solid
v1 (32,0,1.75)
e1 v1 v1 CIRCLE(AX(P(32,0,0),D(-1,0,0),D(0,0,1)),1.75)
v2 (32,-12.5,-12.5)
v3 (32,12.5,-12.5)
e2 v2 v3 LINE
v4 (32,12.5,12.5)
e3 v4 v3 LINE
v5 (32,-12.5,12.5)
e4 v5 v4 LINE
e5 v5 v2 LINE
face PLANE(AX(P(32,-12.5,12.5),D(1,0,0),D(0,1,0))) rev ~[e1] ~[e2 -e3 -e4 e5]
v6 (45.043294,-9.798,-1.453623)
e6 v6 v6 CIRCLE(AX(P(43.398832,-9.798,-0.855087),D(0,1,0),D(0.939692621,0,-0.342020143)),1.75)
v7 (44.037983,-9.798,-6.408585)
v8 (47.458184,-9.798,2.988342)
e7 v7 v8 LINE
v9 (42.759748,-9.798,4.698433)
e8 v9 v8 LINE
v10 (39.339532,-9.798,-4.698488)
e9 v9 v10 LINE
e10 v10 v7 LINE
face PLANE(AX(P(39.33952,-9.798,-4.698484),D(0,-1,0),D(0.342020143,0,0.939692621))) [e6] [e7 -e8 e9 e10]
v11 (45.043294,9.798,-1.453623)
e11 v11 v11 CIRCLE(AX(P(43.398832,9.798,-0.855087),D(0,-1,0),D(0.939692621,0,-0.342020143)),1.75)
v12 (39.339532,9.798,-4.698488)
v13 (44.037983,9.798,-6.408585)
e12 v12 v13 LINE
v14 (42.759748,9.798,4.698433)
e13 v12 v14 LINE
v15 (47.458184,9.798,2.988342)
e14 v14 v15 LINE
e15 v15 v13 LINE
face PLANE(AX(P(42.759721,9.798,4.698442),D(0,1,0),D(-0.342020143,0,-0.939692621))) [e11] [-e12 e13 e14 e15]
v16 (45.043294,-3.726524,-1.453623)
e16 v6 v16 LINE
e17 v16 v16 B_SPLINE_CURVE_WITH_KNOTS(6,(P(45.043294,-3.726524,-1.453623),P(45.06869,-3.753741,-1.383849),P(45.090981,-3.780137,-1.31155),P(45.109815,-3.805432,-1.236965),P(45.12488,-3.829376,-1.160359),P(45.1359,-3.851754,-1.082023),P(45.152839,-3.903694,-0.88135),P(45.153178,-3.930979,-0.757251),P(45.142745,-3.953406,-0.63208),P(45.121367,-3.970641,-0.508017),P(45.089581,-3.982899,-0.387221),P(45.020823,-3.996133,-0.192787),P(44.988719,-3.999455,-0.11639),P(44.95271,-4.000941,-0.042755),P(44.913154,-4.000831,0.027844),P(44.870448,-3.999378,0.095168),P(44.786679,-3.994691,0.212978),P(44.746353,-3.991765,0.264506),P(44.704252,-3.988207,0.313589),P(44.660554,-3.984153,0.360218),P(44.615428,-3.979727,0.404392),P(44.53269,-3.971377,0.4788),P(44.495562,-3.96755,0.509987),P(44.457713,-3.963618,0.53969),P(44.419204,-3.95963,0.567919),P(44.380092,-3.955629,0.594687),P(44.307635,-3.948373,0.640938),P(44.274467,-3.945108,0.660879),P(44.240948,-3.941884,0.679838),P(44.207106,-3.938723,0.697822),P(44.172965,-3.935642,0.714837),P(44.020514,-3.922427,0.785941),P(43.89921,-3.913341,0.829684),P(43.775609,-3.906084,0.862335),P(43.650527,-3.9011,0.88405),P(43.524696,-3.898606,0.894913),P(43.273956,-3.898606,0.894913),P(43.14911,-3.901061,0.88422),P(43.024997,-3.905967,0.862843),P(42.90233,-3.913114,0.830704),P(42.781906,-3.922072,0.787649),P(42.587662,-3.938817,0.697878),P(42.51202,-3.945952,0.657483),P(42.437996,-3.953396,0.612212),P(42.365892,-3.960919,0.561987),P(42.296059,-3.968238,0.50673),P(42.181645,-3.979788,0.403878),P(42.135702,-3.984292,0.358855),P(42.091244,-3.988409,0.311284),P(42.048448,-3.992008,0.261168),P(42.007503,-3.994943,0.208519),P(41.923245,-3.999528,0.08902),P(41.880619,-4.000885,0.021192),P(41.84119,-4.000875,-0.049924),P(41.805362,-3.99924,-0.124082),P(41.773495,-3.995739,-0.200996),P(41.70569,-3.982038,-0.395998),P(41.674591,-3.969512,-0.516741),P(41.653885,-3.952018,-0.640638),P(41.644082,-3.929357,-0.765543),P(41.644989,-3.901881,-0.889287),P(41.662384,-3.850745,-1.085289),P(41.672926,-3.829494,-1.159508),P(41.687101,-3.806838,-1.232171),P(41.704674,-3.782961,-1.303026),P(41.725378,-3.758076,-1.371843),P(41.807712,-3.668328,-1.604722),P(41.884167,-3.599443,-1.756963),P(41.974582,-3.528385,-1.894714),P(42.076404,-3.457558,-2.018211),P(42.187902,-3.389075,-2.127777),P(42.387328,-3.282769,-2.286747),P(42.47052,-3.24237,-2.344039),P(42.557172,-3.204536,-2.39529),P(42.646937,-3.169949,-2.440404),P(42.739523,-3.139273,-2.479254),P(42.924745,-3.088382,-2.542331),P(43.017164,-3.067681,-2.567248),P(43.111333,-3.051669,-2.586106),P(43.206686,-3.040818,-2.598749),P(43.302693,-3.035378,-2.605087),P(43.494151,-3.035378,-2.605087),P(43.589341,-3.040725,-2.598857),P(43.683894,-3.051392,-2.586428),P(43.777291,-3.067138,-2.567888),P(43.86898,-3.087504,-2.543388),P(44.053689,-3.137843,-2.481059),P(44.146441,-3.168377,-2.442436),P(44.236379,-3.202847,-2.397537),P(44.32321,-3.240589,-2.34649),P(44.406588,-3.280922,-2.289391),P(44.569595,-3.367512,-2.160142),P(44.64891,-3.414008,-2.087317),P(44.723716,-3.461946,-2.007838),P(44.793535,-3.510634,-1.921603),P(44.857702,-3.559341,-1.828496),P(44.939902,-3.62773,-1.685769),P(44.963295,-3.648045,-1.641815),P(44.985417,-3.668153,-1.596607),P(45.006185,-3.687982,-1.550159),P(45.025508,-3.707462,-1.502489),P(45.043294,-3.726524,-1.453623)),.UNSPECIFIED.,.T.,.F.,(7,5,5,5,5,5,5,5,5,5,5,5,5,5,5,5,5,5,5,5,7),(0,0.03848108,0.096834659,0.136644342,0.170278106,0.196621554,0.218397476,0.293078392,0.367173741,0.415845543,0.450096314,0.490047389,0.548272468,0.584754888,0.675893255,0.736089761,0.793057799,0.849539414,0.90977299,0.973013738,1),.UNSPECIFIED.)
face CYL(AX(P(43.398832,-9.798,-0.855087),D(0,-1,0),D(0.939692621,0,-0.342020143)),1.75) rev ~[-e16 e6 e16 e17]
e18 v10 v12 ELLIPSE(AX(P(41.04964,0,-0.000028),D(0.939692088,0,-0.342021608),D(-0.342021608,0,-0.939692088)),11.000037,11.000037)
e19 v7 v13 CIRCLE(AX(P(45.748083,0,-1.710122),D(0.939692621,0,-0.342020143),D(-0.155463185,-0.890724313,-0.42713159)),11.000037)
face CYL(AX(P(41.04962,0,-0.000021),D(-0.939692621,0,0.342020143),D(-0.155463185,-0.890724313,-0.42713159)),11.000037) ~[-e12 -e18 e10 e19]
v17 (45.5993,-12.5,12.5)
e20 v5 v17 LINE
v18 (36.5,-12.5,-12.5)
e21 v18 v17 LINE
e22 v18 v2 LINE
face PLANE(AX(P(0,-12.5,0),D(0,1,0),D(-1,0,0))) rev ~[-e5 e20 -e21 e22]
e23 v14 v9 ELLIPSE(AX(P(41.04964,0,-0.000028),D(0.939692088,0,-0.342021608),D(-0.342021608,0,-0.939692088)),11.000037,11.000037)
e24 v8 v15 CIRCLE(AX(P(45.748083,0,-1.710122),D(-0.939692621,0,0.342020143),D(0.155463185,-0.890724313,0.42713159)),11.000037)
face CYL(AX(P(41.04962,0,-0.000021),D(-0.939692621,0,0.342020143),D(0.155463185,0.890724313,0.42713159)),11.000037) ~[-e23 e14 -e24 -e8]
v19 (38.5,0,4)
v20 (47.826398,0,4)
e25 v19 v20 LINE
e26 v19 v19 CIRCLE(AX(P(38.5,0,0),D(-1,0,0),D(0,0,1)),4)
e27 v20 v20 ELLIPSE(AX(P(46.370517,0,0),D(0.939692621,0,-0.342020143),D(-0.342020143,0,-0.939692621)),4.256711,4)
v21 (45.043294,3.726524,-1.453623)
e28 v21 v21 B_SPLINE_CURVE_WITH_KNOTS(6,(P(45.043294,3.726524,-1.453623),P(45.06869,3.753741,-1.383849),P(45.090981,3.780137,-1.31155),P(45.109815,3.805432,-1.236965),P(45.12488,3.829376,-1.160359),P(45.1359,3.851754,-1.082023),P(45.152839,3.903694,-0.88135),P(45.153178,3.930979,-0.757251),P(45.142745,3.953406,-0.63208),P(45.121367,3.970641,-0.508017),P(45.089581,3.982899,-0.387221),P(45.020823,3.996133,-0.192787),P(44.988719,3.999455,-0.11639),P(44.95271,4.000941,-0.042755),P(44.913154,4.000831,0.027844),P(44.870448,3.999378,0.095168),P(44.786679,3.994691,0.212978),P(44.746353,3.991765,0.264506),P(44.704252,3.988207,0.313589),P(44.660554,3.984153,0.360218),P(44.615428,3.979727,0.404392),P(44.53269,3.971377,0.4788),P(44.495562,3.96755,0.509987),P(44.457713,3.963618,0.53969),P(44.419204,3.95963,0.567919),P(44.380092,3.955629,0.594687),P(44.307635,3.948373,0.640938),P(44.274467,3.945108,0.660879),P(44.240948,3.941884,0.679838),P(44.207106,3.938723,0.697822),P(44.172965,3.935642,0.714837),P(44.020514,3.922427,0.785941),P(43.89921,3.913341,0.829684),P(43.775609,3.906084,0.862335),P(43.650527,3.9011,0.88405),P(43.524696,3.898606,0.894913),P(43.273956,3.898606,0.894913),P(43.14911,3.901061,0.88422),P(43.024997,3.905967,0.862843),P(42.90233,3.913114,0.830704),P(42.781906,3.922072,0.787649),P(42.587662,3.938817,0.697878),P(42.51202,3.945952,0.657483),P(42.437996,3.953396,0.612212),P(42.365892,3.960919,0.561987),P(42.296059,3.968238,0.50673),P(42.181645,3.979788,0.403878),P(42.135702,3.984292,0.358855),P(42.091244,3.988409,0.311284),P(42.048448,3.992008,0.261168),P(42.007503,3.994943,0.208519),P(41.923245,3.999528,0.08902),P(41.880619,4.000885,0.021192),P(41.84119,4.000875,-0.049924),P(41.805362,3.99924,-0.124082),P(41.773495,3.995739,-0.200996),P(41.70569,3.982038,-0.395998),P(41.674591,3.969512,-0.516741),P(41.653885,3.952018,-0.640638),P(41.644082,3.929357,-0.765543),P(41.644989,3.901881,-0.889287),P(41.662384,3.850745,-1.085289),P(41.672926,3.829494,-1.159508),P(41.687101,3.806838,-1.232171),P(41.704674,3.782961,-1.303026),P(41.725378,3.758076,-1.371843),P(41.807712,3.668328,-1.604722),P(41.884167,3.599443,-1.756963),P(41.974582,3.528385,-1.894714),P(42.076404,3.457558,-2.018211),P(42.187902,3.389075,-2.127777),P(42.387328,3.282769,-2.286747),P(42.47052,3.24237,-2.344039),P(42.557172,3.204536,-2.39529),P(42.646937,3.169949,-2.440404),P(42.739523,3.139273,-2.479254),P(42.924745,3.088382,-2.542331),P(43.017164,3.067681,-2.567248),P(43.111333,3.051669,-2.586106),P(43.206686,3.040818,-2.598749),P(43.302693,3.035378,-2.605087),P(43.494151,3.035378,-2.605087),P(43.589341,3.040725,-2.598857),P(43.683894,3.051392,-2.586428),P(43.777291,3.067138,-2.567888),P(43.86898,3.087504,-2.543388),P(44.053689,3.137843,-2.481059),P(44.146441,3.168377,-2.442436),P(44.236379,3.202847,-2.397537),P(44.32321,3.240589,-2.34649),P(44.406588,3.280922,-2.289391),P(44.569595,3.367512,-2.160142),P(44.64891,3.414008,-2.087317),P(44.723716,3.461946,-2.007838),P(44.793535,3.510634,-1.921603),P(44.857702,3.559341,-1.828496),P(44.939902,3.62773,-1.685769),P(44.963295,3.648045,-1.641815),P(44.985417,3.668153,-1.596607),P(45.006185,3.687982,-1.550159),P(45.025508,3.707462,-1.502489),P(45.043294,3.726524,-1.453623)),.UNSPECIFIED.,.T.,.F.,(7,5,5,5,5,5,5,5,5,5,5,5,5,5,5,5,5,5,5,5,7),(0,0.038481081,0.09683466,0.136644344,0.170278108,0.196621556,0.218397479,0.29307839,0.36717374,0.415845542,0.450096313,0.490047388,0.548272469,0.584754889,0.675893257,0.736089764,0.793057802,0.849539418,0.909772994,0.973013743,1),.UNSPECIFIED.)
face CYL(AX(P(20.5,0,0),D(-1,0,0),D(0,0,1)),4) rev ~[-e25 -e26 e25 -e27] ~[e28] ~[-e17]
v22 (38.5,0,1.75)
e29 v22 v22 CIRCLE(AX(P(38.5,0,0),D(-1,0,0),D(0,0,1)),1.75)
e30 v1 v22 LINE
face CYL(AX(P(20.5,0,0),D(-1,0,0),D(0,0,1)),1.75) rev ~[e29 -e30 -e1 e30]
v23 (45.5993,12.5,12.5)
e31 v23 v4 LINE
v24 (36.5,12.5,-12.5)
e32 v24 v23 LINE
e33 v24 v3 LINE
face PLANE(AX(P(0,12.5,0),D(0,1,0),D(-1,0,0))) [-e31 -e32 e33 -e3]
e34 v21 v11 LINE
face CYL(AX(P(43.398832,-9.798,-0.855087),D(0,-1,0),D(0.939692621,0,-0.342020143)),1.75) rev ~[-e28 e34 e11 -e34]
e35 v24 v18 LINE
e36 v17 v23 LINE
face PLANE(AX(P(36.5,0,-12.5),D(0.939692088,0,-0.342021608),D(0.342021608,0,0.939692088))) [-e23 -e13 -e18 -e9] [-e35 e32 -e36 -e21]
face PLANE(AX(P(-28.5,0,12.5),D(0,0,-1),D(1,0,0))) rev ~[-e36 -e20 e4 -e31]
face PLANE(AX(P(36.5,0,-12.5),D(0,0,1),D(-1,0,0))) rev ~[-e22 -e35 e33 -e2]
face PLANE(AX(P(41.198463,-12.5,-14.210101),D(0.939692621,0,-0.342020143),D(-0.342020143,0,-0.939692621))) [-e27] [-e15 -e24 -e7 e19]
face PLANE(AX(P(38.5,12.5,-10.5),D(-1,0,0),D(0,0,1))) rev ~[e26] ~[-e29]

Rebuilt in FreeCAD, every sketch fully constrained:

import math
import FreeCAD as App
import Part
import Sketcher
from FreeCAD import Vector
Q = App.Units.Quantity


def add_polygon(sketch, points):
    """Adds a closed chain of lines whose ends are joined by coincident constraints."""
    first, n = sketch.GeometryCount, len(points)
    for a, b in zip(points, points[1:] + points[:1]):
        sketch.addGeometry(Part.LineSegment(App.Vector(*a, 0), App.Vector(*b, 0)), False)
    for i in range(n):
        sketch.addConstraint(Sketcher.Constraint("Coincident", first + i, 2, first + (i + 1) % n, 1))

doc = App.newDocument("Part")
body = doc.addObject("PartDesign::Body", "Body")

sketch1 = body.newObject("Sketcher::SketchObject", "Sketch")
sketch1.AttachmentSupport = (doc.getObject("XZ_Plane"), [""])
sketch1.MapMode = "FlatFace"
add_polygon(sketch1, [(-28, -12), (-28, 12), (46, 12), (36, -12)])
add_polygon(sketch1, [(20, 10), (-20, 10), (-20, -10), (20, -10)])
sketch1.addConstraint(Sketcher.Constraint("Vertical", 0))
sketch1.addConstraint(Sketcher.Constraint("Horizontal", 1))
sketch1.addConstraint(Sketcher.Constraint("Horizontal", 3))
sketch1.addConstraint(Sketcher.Constraint("Horizontal", 4))
sketch1.addConstraint(Sketcher.Constraint("Vertical", 5))
sketch1.addConstraint(Sketcher.Constraint("Horizontal", 6))
sketch1.addConstraint(Sketcher.Constraint("Vertical", 7))
sketch1.addConstraint(Sketcher.Constraint("Symmetric", 4, 2, 6, 2, -1, 1))
sketch1.addConstraint(Sketcher.Constraint("DistanceX", 4, 2, 4, 1, Q("41 mm")))
sketch1.addConstraint(Sketcher.Constraint("DistanceY", 5, 2, 5, 1, Q("21 mm")))
sketch1.addConstraint(Sketcher.Constraint("DistanceX", 0, 2, 4, 2, Q("8 mm")))
sketch1.addConstraint(Sketcher.Constraint("DistanceY", 4, 2, 0, 2, Q("2 mm")))
sketch1.addConstraint(Sketcher.Constraint("DistanceY", 3, 2, 5, 2, Q("2 mm")))
sketch1.addConstraint(Sketcher.Constraint("DistanceX", 6, 2, 2, 2, Q("16 mm")))
sketch1.addConstraint(Sketcher.Constraint("Angle", 2, Q("-110 deg")))
pad1 = body.newObject("PartDesign::Pad", "Pad")
pad1.Profile = sketch1
pad1.Length = 25
pad1.Midplane = True

sketch2 = body.newObject("Sketcher::SketchObject", "Sketch001")
sketch2.Placement = App.Placement(Vector(36.5, -12.5, -12.5), App.Rotation(Vector(-0.342020143, 0, -0.939692621), Vector(0, 1, 0), Vector(0.939692621, 0, -0.342020143), "ZXY"))
sketch2.addGeometry(Part.ArcOfCircle(Part.Circle(Vector(-13, 13, 0), Vector(0, 0, 1), 11), math.radians(117), math.radians(243)), False)
sketch2.addGeometry(Part.LineSegment(Vector(-18, 3, 0), Vector(-8, 3, 0)), False)
sketch2.addGeometry(Part.ArcOfCircle(Part.Circle(Vector(-13, 13, 0), Vector(0, 0, 1), 11), math.radians(-63), math.radians(63)), False)
sketch2.addGeometry(Part.LineSegment(Vector(-8, 22, 0), Vector(-18, 22, 0)), False)
sketch2.addConstraint(Sketcher.Constraint("Coincident", 0, 2, 1, 1))
sketch2.addConstraint(Sketcher.Constraint("Coincident", 1, 2, 2, 1))
sketch2.addConstraint(Sketcher.Constraint("Coincident", 2, 2, 3, 1))
sketch2.addConstraint(Sketcher.Constraint("Coincident", 3, 2, 0, 1))
sketch2.addConstraint(Sketcher.Constraint("Horizontal", 1))
sketch2.addConstraint(Sketcher.Constraint("Horizontal", 3))
sketch2.addConstraint(Sketcher.Constraint("Coincident", 2, 3, 0, 3))
sketch2.addConstraint(Sketcher.Constraint("Equal", 0, 2))
sketch2.addConstraint(Sketcher.Constraint("Vertical", 1, 2, 2, 2))
sketch2.addConstraint(Sketcher.Constraint("Radius", 0, Q("11 mm")))
sketch2.addConstraint(Sketcher.Constraint("DistanceX", 1, 1, 1, 2, Q("10 mm")))
sketch2.addConstraint(Sketcher.Constraint("DistanceY", -1, 1, 0, 3, Q("12.5 mm")))
sketch2.addConstraint(Sketcher.Constraint("DistanceX", 0, 3, -1, 1, Q("13.3022 mm")))
pad2 = body.newObject("PartDesign::Pad", "Pad001")
pad2.Profile = sketch2
pad2.Length = 5

sketch3 = body.newObject("Sketcher::SketchObject", "Sketch002")
sketch3.AttachmentSupport = (doc.getObject("XZ_Plane"), [""])
sketch3.MapMode = "FlatFace"
sketch3.AttachmentOffset = App.Placement(Vector(0, 0, 9.798), App.Rotation())
sketch3.addGeometry(Part.Circle(Vector(43.4, -0.9, 0), Vector(0, 0, 1), 1.8), False)
sketch3.addConstraint(Sketcher.Constraint("Diameter", 0, Q("3.5 mm")))
sketch3.addConstraint(Sketcher.Constraint("DistanceY", 0, 3, -1, 1, Q("0.855 mm")))
sketch3.addConstraint(Sketcher.Constraint("DistanceX", -1, 1, 0, 3, Q("43.3988 mm")))
pocket1 = body.newObject("PartDesign::Pocket", "Pocket")
pocket1.Profile = sketch3
pocket1.Type = "ThroughAll"

sketch4 = body.newObject("Sketcher::SketchObject", "Sketch003")
sketch4.AttachmentSupport = (doc.getObject("YZ_Plane"), [""])
sketch4.MapMode = "FlatFace"
sketch4.AttachmentOffset = App.Placement(Vector(0, 0, 20.5), App.Rotation())
add_polygon(sketch4, [(-6.5, -10.5), (-9.5, -10.5), (-9.5, 10.5), (-6.5, 10.5)])
sketch4.addConstraint(Sketcher.Constraint("Horizontal", 0))
sketch4.addConstraint(Sketcher.Constraint("Vertical", 1))
sketch4.addConstraint(Sketcher.Constraint("Horizontal", 2))
sketch4.addConstraint(Sketcher.Constraint("Vertical", 3))
sketch4.addConstraint(Sketcher.Constraint("DistanceX", 0, 2, 0, 1, Q("3 mm")))
sketch4.addConstraint(Sketcher.Constraint("DistanceY", 1, 1, 1, 2, Q("21 mm")))
sketch4.addConstraint(Sketcher.Constraint("DistanceX", 0, 2, -1, 1, Q("9.5 mm")))
sketch4.addConstraint(Sketcher.Constraint("DistanceY", 0, 2, -1, 1, Q("10.5 mm")))
pocket2 = body.newObject("PartDesign::Pocket", "Pocket001")
pocket2.Profile = sketch4
pocket2.Length = 7
pocket2.Reversed = True

sketch5 = body.newObject("Sketcher::SketchObject", "Sketch004")
sketch5.AttachmentSupport = (doc.getObject("YZ_Plane"), [""])
sketch5.MapMode = "FlatFace"
sketch5.AttachmentOffset = App.Placement(Vector(0, 0, -20.5), App.Rotation())
add_polygon(sketch5, [(-6.5, -10.5), (-6.5, 10.5), (-9.5, 10.5), (-9.5, -10.5)])
sketch5.addConstraint(Sketcher.Constraint("Vertical", 0))
sketch5.addConstraint(Sketcher.Constraint("Horizontal", 1))
sketch5.addConstraint(Sketcher.Constraint("Vertical", 2))
sketch5.addConstraint(Sketcher.Constraint("Horizontal", 3))
sketch5.addConstraint(Sketcher.Constraint("DistanceX", 1, 2, 1, 1, Q("3 mm")))
sketch5.addConstraint(Sketcher.Constraint("DistanceY", 0, 1, 0, 2, Q("21 mm")))
sketch5.addConstraint(Sketcher.Constraint("DistanceX", 0, 2, -1, 1, Q("6.5 mm")))
sketch5.addConstraint(Sketcher.Constraint("DistanceY", -1, 1, 0, 2, Q("10.5 mm")))
pocket3 = body.newObject("PartDesign::Pocket", "Pocket002")
pocket3.Profile = sketch5
pocket3.Length = 7

sketch6 = body.newObject("Sketcher::SketchObject", "Sketch005")
sketch6.AttachmentSupport = (doc.getObject("YZ_Plane"), [""])
sketch6.MapMode = "FlatFace"
sketch6.AttachmentOffset = App.Placement(Vector(0, 0, 20.5), App.Rotation())
sketch6.addGeometry(Part.Circle(Vector(0, 0, 0), Vector(0, 0, 1), 4), False)
sketch6.addConstraint(Sketcher.Constraint("Coincident", 0, 3, -1, 1))
sketch6.addConstraint(Sketcher.Constraint("Diameter", 0, Q("8 mm")))
pocket4 = body.newObject("PartDesign::Pocket", "Pocket003")
pocket4.Profile = sketch6
pocket4.Type = "ThroughAll"
pocket4.Reversed = True

sketch7 = body.newObject("Sketcher::SketchObject", "Sketch006")
sketch7.AttachmentSupport = (doc.getObject("YZ_Plane"), [""])
sketch7.MapMode = "FlatFace"
sketch7.AttachmentOffset = App.Placement(Vector(0, 0, 20.5), App.Rotation())
sketch7.addGeometry(Part.Circle(Vector(0, 0, 0), Vector(0, 0, 1), 4), False)
sketch7.addGeometry(Part.Circle(Vector(0, 0, 0), Vector(0, 0, 1), 1.8), False)
sketch7.addConstraint(Sketcher.Constraint("Coincident", 0, 3, -1, 1))
sketch7.addConstraint(Sketcher.Constraint("Coincident", 1, 3, -1, 1))
sketch7.addConstraint(Sketcher.Constraint("Diameter", 1, Q("3.5 mm")))
sketch7.addConstraint(Sketcher.Constraint("Diameter", 0, Q("8 mm")))
pad3 = body.newObject("PartDesign::Pad", "Pad002")
pad3.Profile = sketch7
pad3.Length = 18

sketch8 = body.newObject("Sketcher::SketchObject", "Sketch007")
sketch8.AttachmentSupport = (doc.getObject("YZ_Plane"), [""])
sketch8.MapMode = "FlatFace"
sketch8.AttachmentOffset = App.Placement(Vector(0, 0, 20.5), App.Rotation())
sketch8.addGeometry(Part.Circle(Vector(0, 0, 0), Vector(0, 0, 1), 3), False)
sketch8.addConstraint(Sketcher.Constraint("Coincident", 0, 3, -1, 1))
sketch8.addConstraint(Sketcher.Constraint("Diameter", 0, Q("6 mm")))
pocket5 = body.newObject("PartDesign::Pocket", "Pocket004")
pocket5.Profile = sketch8
pocket5.Length = 3
pocket5.Reversed = True

sketch9 = body.newObject("Sketcher::SketchObject", "Sketch008")
sketch9.AttachmentSupport = (doc.getObject("XZ_Plane"), [""])
sketch9.MapMode = "FlatFace"
sketch9.AttachmentOffset = App.Placement(Vector(0, 0, 12.5), App.Rotation())
sketch9.addGeometry(Part.Circle(Vector(-24, -5.2, 0), Vector(0, 0, 1), 2), False)
sketch9.addGeometry(Part.Circle(Vector(-24, 5.2, 0), Vector(0, 0, 1), 2), False)
sketch9.addGeometry(Part.Circle(Vector(24, -5.2, 0), Vector(0, 0, 1), 2), False)
sketch9.addGeometry(Part.Circle(Vector(24, 5.2, 0), Vector(0, 0, 1), 2), False)
sketch9.addConstraint(Sketcher.Constraint("Equal", 0, 1))
sketch9.addConstraint(Sketcher.Constraint("Equal", 1, 2))
sketch9.addConstraint(Sketcher.Constraint("Equal", 2, 3))
sketch9.addConstraint(Sketcher.Constraint("Symmetric", 1, 3, 2, 3, -1, 1))
sketch9.addConstraint(Sketcher.Constraint("Symmetric", 0, 3, 3, 3, -1, 1))
sketch9.addConstraint(Sketcher.Constraint("Symmetric", 0, 3, 2, 3, -2))
sketch9.addConstraint(Sketcher.Constraint("Diameter", 0, Q("4 mm")))
sketch9.addConstraint(Sketcher.Constraint("DistanceX", 0, 3, -1, 1, Q("24 mm")))
sketch9.addConstraint(Sketcher.Constraint("DistanceY", 0, 3, 1, 3, Q("10.5 mm")))
pocket6 = body.newObject("PartDesign::Pocket", "Pocket005")
pocket6.Profile = sketch9
pocket6.Type = "ThroughAll"

sketch10 = body.newObject("Sketcher::SketchObject", "Sketch009")
sketch10.AttachmentSupport = (doc.getObject("XY_Plane"), [""])
sketch10.MapMode = "FlatFace"
sketch10.AttachmentOffset = App.Placement(Vector(0, 0, -12.5), App.Rotation())
add_polygon(sketch10, [(-28, 0), (-28, 12), (4, 12), (-8, 0)])
sketch10.addConstraint(Sketcher.Constraint("Vertical", 0))
sketch10.addConstraint(Sketcher.Constraint("Horizontal", 1))
sketch10.addConstraint(Sketcher.Constraint("Horizontal", 3))
sketch10.addConstraint(Sketcher.Constraint("DistanceX", 3, 2, 3, 1, Q("20 mm")))
sketch10.addConstraint(Sketcher.Constraint("DistanceX", 1, 1, 1, 2, Q("33 mm")))
sketch10.addConstraint(Sketcher.Constraint("DistanceY", 0, 1, 0, 2, Q("13 mm")))
sketch10.addConstraint(Sketcher.Constraint("DistanceX", 0, 2, -1, 1, Q("28.5 mm")))
sketch10.addConstraint(Sketcher.Constraint("DistanceY", -1, 1, 0, 2, Q("12.5 mm")))
pocket7 = body.newObject("PartDesign::Pocket", "Pocket006")
pocket7.Profile = sketch10
pocket7.Type = "ThroughAll"
pocket7.Reversed = True

sketch11 = body.newObject("Sketcher::SketchObject", "Sketch010")
sketch11.AttachmentSupport = (doc.getObject("XY_Plane"), [""])
sketch11.MapMode = "FlatFace"
sketch11.AttachmentOffset = App.Placement(Vector(0, 0, 12.5), App.Rotation())
add_polygon(sketch11, [(32, 12), (-28, 12), (-28, -12), (32, -12)])
sketch11.addConstraint(Sketcher.Constraint("Horizontal", 0))
sketch11.addConstraint(Sketcher.Constraint("Vertical", 1))
sketch11.addConstraint(Sketcher.Constraint("Horizontal", 2))
sketch11.addConstraint(Sketcher.Constraint("Vertical", 3))
sketch11.addConstraint(Sketcher.Constraint("DistanceY", 1, 2, 1, 1, Q("25 mm")))
sketch11.addConstraint(Sketcher.Constraint("DistanceX", 0, 2, 0, 1, Q("60.5 mm")))
sketch11.addConstraint(Sketcher.Constraint("DistanceX", -1, 1, 2, 2, Q("32 mm")))
sketch11.addConstraint(Sketcher.Constraint("DistanceY", -1, 1, 0, 2, Q("12.5 mm")))
pocket8 = body.newObject("PartDesign::Pocket", "Pocket007")
pocket8.Profile = sketch11
pocket8.Type = "ThroughAll"

doc.recompute()
